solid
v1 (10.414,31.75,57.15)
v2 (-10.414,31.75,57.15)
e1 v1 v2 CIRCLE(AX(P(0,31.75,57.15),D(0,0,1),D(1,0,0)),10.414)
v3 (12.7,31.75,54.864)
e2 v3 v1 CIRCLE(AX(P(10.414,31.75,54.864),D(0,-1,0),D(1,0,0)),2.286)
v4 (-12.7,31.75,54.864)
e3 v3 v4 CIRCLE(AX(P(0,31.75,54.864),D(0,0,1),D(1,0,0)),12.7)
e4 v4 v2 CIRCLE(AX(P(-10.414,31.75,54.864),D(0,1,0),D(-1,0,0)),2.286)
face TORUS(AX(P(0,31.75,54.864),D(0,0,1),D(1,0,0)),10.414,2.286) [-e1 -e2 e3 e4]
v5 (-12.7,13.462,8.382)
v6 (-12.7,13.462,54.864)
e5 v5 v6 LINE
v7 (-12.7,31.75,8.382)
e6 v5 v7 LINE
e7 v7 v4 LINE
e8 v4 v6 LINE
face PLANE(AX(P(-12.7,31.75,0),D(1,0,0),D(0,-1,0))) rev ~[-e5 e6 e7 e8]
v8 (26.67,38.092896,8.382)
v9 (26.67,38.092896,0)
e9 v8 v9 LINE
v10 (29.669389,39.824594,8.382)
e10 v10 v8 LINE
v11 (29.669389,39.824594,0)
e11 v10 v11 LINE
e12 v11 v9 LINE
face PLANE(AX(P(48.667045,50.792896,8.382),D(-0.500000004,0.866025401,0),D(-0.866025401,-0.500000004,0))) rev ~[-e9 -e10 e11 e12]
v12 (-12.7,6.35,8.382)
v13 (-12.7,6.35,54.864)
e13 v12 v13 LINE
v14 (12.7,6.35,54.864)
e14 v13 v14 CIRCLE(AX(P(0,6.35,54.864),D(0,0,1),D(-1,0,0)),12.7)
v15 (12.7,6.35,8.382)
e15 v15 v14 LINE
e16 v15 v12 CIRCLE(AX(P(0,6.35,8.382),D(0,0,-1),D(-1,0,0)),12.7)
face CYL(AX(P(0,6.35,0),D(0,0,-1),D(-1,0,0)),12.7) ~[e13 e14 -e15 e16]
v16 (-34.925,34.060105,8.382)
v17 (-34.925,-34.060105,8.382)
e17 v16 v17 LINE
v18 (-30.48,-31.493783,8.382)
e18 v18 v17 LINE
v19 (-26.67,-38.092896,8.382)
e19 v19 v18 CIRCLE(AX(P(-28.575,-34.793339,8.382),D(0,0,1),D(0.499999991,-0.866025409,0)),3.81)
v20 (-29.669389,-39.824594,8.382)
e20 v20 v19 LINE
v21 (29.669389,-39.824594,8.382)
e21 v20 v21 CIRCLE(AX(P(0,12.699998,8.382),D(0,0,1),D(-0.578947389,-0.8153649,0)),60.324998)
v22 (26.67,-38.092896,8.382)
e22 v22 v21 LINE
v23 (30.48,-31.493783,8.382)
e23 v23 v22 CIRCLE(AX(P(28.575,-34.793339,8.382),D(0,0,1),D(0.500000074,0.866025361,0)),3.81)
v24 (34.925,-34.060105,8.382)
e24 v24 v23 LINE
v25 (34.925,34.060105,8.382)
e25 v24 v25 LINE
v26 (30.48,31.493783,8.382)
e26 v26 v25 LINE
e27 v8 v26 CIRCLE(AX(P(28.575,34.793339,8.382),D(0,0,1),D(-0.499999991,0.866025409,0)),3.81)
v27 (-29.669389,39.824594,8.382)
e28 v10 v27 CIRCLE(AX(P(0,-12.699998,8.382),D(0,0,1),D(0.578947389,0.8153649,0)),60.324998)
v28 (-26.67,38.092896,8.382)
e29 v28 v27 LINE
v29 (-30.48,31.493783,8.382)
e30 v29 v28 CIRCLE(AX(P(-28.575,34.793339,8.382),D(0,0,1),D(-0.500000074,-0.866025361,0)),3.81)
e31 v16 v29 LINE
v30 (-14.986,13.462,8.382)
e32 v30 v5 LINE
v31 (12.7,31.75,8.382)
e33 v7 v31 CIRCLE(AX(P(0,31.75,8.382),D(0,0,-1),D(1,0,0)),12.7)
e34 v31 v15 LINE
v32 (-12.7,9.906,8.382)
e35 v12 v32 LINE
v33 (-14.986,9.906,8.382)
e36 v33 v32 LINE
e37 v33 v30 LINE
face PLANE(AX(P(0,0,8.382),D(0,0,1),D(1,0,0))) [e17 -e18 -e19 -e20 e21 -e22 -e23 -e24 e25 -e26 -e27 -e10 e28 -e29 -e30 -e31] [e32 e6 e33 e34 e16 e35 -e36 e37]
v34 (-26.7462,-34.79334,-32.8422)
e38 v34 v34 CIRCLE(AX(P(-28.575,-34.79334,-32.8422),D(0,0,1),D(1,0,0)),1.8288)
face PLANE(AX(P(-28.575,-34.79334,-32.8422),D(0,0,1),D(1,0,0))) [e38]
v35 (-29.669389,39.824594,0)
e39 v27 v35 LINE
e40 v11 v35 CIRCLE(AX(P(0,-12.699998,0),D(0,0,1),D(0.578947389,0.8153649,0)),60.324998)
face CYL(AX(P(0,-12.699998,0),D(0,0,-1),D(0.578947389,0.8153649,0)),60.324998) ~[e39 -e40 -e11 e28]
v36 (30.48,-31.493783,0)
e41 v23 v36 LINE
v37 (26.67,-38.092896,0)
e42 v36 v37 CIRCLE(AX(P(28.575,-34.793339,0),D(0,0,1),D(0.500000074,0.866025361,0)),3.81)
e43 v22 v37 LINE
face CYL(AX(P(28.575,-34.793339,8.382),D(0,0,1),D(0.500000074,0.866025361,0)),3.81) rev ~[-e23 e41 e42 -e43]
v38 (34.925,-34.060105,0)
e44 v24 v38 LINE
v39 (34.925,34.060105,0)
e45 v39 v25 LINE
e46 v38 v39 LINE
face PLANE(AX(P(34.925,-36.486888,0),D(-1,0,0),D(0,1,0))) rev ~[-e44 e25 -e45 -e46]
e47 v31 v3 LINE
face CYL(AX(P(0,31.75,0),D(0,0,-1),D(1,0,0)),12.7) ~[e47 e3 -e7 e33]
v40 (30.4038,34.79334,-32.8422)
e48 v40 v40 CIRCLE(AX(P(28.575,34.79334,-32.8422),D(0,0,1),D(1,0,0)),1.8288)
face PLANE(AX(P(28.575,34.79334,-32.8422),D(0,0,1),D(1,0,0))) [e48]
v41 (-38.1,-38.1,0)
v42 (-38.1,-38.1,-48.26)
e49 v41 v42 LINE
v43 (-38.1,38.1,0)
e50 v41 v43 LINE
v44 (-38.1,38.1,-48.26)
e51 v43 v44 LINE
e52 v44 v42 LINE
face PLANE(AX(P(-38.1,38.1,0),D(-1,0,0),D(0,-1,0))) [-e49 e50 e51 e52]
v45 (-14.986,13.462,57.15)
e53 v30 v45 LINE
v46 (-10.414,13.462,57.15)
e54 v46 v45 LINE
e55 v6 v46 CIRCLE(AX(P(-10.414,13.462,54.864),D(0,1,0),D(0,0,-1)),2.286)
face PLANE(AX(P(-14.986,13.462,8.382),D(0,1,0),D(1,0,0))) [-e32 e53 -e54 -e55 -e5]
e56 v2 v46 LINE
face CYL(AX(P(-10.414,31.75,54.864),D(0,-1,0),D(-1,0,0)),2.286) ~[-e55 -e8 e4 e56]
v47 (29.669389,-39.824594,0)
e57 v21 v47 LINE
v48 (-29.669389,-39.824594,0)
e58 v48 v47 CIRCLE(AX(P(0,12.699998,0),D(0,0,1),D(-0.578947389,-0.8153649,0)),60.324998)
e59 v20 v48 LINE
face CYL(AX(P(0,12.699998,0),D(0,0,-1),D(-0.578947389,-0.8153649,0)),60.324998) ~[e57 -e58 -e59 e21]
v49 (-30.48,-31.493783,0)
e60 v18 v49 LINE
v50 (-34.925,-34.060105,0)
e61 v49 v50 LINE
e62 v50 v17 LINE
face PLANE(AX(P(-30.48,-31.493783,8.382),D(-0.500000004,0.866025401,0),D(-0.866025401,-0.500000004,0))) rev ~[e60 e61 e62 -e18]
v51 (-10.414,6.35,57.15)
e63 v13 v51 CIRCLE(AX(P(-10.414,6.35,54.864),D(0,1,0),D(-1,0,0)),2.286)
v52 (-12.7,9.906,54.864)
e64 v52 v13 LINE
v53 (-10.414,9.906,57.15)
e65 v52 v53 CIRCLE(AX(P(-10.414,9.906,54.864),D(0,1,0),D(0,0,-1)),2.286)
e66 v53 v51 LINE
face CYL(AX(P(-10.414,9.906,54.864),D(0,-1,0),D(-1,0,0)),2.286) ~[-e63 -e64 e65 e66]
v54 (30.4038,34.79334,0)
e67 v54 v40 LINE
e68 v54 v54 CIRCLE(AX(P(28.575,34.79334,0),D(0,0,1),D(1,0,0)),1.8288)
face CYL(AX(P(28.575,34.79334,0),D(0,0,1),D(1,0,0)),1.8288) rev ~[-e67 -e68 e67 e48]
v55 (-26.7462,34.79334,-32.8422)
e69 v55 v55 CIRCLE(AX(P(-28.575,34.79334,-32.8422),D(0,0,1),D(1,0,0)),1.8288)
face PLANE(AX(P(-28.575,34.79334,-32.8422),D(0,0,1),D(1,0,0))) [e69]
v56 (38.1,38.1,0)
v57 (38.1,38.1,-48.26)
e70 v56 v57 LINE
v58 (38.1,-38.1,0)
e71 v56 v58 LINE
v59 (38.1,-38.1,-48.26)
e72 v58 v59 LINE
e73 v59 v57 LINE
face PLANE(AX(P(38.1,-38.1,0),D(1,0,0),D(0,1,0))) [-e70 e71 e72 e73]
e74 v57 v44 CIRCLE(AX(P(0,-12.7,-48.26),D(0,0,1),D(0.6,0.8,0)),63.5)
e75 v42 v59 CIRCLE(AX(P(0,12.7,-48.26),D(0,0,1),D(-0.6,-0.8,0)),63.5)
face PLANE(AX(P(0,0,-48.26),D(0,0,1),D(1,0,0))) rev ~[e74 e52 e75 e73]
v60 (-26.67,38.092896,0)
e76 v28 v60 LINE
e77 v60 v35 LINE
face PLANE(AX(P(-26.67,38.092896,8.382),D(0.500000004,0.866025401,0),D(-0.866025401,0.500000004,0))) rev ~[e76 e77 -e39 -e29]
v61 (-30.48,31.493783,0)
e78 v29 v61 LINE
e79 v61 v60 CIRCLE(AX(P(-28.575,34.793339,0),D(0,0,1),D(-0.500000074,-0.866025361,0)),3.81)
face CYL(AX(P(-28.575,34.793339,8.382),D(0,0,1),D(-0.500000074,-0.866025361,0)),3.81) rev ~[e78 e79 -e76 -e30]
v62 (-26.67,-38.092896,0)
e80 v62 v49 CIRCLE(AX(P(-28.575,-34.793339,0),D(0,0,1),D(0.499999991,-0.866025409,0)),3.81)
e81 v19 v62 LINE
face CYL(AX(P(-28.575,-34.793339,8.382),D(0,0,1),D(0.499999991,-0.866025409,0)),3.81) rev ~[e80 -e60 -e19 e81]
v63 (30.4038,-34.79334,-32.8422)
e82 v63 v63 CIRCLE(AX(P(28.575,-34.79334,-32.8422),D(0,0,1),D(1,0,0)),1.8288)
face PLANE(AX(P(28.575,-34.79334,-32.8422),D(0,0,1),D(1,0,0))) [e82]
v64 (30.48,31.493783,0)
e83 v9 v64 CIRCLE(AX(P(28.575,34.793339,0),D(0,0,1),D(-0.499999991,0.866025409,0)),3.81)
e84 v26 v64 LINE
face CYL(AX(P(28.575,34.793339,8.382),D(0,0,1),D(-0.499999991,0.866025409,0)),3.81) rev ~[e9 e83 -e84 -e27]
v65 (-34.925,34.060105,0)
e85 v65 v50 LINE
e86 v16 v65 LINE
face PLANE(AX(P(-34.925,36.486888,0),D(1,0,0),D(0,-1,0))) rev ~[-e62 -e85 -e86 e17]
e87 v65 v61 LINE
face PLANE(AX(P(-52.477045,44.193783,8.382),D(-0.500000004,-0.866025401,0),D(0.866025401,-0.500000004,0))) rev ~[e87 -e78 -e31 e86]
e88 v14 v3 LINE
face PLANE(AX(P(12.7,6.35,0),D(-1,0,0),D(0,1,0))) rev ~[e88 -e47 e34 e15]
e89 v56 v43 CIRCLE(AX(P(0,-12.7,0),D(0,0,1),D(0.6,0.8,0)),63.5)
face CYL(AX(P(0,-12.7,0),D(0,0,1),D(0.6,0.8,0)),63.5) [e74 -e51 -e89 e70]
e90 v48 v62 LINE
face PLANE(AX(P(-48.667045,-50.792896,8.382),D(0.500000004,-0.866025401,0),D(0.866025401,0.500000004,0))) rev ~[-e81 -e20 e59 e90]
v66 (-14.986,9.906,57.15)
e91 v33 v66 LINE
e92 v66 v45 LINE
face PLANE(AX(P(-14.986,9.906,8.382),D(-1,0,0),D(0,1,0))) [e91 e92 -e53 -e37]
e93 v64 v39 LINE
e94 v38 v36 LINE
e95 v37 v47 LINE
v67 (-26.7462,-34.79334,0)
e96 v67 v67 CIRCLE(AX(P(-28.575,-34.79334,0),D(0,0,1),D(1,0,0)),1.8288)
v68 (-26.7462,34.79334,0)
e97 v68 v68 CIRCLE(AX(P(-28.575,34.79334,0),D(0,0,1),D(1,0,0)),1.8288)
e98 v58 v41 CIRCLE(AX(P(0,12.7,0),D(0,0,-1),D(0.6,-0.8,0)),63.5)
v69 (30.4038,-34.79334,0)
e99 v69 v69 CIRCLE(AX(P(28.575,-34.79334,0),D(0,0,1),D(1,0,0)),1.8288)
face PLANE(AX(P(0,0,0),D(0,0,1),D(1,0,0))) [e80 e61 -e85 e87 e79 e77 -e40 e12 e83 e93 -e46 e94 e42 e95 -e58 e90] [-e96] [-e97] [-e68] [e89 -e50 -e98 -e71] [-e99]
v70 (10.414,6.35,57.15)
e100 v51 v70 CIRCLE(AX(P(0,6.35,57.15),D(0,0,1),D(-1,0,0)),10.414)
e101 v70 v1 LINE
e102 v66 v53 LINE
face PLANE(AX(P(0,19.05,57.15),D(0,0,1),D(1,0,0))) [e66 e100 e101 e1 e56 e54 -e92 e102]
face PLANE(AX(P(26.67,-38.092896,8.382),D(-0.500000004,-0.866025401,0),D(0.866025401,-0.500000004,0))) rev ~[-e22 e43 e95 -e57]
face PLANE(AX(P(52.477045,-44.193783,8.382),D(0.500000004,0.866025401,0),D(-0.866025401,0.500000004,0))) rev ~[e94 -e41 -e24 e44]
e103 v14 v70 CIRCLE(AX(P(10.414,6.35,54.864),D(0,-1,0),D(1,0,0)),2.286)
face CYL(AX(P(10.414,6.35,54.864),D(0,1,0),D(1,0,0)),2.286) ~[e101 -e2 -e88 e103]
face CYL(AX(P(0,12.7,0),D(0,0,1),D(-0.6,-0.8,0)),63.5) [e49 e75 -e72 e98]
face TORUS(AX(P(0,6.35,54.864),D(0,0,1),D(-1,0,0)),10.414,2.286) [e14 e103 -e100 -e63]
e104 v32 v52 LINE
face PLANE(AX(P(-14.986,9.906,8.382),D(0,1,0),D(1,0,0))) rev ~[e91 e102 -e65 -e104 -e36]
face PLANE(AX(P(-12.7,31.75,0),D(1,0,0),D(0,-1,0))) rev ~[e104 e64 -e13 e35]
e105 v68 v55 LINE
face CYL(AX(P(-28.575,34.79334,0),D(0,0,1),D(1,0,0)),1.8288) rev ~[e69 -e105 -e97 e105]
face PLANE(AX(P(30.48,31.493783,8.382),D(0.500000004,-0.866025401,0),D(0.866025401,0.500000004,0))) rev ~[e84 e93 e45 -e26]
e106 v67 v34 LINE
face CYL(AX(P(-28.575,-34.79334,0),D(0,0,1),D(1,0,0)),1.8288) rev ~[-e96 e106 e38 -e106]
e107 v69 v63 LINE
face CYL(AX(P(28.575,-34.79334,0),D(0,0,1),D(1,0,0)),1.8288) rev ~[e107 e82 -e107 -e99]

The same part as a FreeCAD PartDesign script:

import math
import FreeCAD as App
import Part
import Sketcher
from FreeCAD import Vector
Q = App.Units.Quantity


def edges_at(feature, points):
    """Names of the edges that pass closest to the given points."""
    edges = feature.Shape.Edges
    near = lambda p: min(range(len(edges)), key=lambda i: edges[i].distToShape(Part.Vertex(*p))[0])
    return sorted({f"Edge{near(p) + 1}" for p in points})


def add_polygon(sketch, points):
    """Adds a closed chain of lines whose ends are joined by coincident constraints."""
    first, n = sketch.GeometryCount, len(points)
    for a, b in zip(points, points[1:] + points[:1]):
        sketch.addGeometry(Part.LineSegment(App.Vector(*a, 0), App.Vector(*b, 0)), False)
    for i in range(n):
        sketch.addConstraint(Sketcher.Constraint("Coincident", first + i, 2, first + (i + 1) % n, 1))

doc = App.newDocument("Part")
body = doc.addObject("PartDesign::Body", "Body")

sketch1 = body.newObject("Sketcher::SketchObject", "Sketch")
sketch1.AttachmentSupport = (doc.getObject("XY_Plane"), [""])
sketch1.MapMode = "FlatFace"
sketch1.addGeometry(Part.ArcOfCircle(Part.Circle(Vector(0, 13, 0), Vector(0, 0, 1), 64), math.radians(-127), math.radians(-53)), False)
sketch1.addGeometry(Part.LineSegment(Vector(38, -38, 0), Vector(38, 38, 0)), False)
sketch1.addGeometry(Part.ArcOfCircle(Part.Circle(Vector(0, -13, 0), Vector(0, 0, 1), 64), math.radians(53), math.radians(127)), False)
sketch1.addGeometry(Part.LineSegment(Vector(-38, 38, 0), Vector(-38, -38, 0)), False)
sketch1.addConstraint(Sketcher.Constraint("Coincident", 0, 2, 1, 1))
sketch1.addConstraint(Sketcher.Constraint("Coincident", 1, 2, 2, 1))
sketch1.addConstraint(Sketcher.Constraint("Coincident", 2, 2, 3, 1))
sketch1.addConstraint(Sketcher.Constraint("Coincident", 3, 2, 0, 1))
sketch1.addConstraint(Sketcher.Constraint("Vertical", 1))
sketch1.addConstraint(Sketcher.Constraint("Vertical", 3))
sketch1.addConstraint(Sketcher.Constraint("Equal", 0, 2))
sketch1.addConstraint(Sketcher.Constraint("Symmetric", 0, 3, 2, 3, -1, 1))
sketch1.addConstraint(Sketcher.Constraint("Symmetric", 1, 2, 2, 2, -2))
sketch1.addConstraint(Sketcher.Constraint("Radius", 0, Q("2.5 in")))
sketch1.addConstraint(Sketcher.Constraint("DistanceY", 1, 1, 1, 2, Q("3 in")))
sketch1.addConstraint(Sketcher.Constraint("DistanceY", 2, 3, 0, 3, Q("1 in")))
pad1 = body.newObject("PartDesign::Pad", "Pad")
pad1.Profile = sketch1
pad1.Length = Q("1.9 in")
pad1.Reversed = True

sketch2 = body.newObject("Sketcher::SketchObject", "Sketch001")
sketch2.AttachmentSupport = (doc.getObject("XY_Plane"), [""])
sketch2.MapMode = "FlatFace"
sketch2.addGeometry(Part.LineSegment(Vector(-35, 36, 0), Vector(-35, -36, 0)), False)
sketch2.addGeometry(Part.ArcOfCircle(Part.Circle(Vector(0, 13, 0), Vector(0, 0, 1), 60), math.radians(-125), math.radians(-55)), False)
sketch2.addGeometry(Part.LineSegment(Vector(35, -36, 0), Vector(35, 36, 0)), False)
sketch2.addGeometry(Part.ArcOfCircle(Part.Circle(Vector(0, -13, 0), Vector(0, 0, 1), 60), math.radians(55), math.radians(125)), False)
sketch2.addConstraint(Sketcher.Constraint("Coincident", 0, 2, 1, 1))
sketch2.addConstraint(Sketcher.Constraint("Coincident", 1, 2, 2, 1))
sketch2.addConstraint(Sketcher.Constraint("Coincident", 2, 2, 3, 1))
sketch2.addConstraint(Sketcher.Constraint("Coincident", 3, 2, 0, 1))
sketch2.addConstraint(Sketcher.Constraint("Vertical", 0))
sketch2.addConstraint(Sketcher.Constraint("Vertical", 2))
sketch2.addConstraint(Sketcher.Constraint("Equal", 1, 3))
sketch2.addConstraint(Sketcher.Constraint("Symmetric", 1, 3, 3, 3, -1, 1))
sketch2.addConstraint(Sketcher.Constraint("Symmetric", 0, 2, 1, 2, -2))
sketch2.addConstraint(Sketcher.Constraint("Radius", 1, Q("2.3749999 in")))
sketch2.addConstraint(Sketcher.Constraint("DistanceY", 3, 3, 1, 3, Q("0.9999998 in")))
sketch2.addConstraint(Sketcher.Constraint("DistanceX", 0, 2, 1, 2, Q("2.75 in")))
pad2 = body.newObject("PartDesign::Pad", "Pad001")
pad2.Profile = sketch2
pad2.Length = Q("0.33 in")

sketch3 = body.newObject("Sketcher::SketchObject", "Sketch002")
sketch3.AttachmentSupport = (doc.getObject("XY_Plane"), [""])
sketch3.MapMode = "FlatFace"
sketch3.AttachmentOffset = App.Placement(Vector(0, 0, 0.33 * 25.4), App.Rotation())
sketch3.addGeometry(Part.ArcOfCircle(Part.Circle(Vector(-28.6, -34.8, 0), Vector(0, 0, 1), 3.8), math.radians(-60), math.radians(120)), False)
sketch3.addGeometry(Part.LineSegment(Vector(-30.5, -31.5, 0), Vector(-52.5, -44.2, 0)), False)
sketch3.addGeometry(Part.ArcOfCircle(Part.Circle(Vector(-50.6, -47.5, 0), Vector(0, 0, 1), 3.8), math.radians(120), math.radians(300)), False)
sketch3.addGeometry(Part.LineSegment(Vector(-48.7, -50.8, 0), Vector(-26.7, -38.1, 0)), False)
sketch3.addGeometry(Part.ArcOfCircle(Part.Circle(Vector(28.6, -34.8, 0), Vector(0, 0, 1), 3.8), math.radians(60), math.radians(240)), False)
sketch3.addGeometry(Part.LineSegment(Vector(26.7, -38.1, 0), Vector(48.7, -50.8, 0)), False)
sketch3.addGeometry(Part.ArcOfCircle(Part.Circle(Vector(50.6, -47.5, 0), Vector(0, 0, 1), 3.8), math.radians(-120), math.radians(60)), False)
sketch3.addGeometry(Part.LineSegment(Vector(52.5, -44.2, 0), Vector(30.5, -31.5, 0)), False)
sketch3.addGeometry(Part.LineSegment(Vector(-52.5, 44.2, 0), Vector(-30.5, 31.5, 0)), False)
sketch3.addGeometry(Part.ArcOfCircle(Part.Circle(Vector(-28.6, 34.8, 0), Vector(0, 0, 1), 3.8), math.radians(-120), math.radians(60)), False)
sketch3.addGeometry(Part.LineSegment(Vector(-26.7, 38.1, 0), Vector(-48.7, 50.8, 0)), False)
sketch3.addGeometry(Part.ArcOfCircle(Part.Circle(Vector(-50.6, 47.5, 0), Vector(0, 0, 1), 3.8), math.radians(60), math.radians(240)), False)
sketch3.addGeometry(Part.ArcOfCircle(Part.Circle(Vector(28.6, 34.8, 0), Vector(0, 0, 1), 3.8), math.radians(120), math.radians(300)), False)
sketch3.addGeometry(Part.LineSegment(Vector(30.5, 31.5, 0), Vector(52.5, 44.2, 0)), False)
sketch3.addGeometry(Part.ArcOfCircle(Part.Circle(Vector(50.6, 47.5, 0), Vector(0, 0, 1), 3.8), math.radians(-60), math.radians(120)), False)
sketch3.addGeometry(Part.LineSegment(Vector(48.7, 50.8, 0), Vector(26.7, 38.1, 0)), False)
sketch3.addConstraint(Sketcher.Constraint("Tangent", 0, 2, 1, 1))
sketch3.addConstraint(Sketcher.Constraint("Tangent", 1, 2, 2, 1))
sketch3.addConstraint(Sketcher.Constraint("Tangent", 2, 2, 3, 1))
sketch3.addConstraint(Sketcher.Constraint("Tangent", 3, 2, 0, 1))
sketch3.addConstraint(Sketcher.Constraint("Tangent", 4, 2, 5, 1))
sketch3.addConstraint(Sketcher.Constraint("Tangent", 5, 2, 6, 1))
sketch3.addConstraint(Sketcher.Constraint("Tangent", 6, 2, 7, 1))
sketch3.addConstraint(Sketcher.Constraint("Tangent", 7, 2, 4, 1))
sketch3.addConstraint(Sketcher.Constraint("Tangent", 8, 2, 9, 1))
sketch3.addConstraint(Sketcher.Constraint("Tangent", 9, 2, 10, 1))
sketch3.addConstraint(Sketcher.Constraint("Tangent", 10, 2, 11, 1))
sketch3.addConstraint(Sketcher.Constraint("Tangent", 11, 2, 8, 1))
sketch3.addConstraint(Sketcher.Constraint("Tangent", 12, 2, 13, 1))
sketch3.addConstraint(Sketcher.Constraint("Tangent", 13, 2, 14, 1))
sketch3.addConstraint(Sketcher.Constraint("Tangent", 14, 2, 15, 1))
sketch3.addConstraint(Sketcher.Constraint("Tangent", 15, 2, 12, 1))
sketch3.addConstraint(Sketcher.Constraint("Equal", 0, 2))
sketch3.addConstraint(Sketcher.Constraint("Equal", 2, 4))
sketch3.addConstraint(Sketcher.Constraint("Equal", 4, 6))
sketch3.addConstraint(Sketcher.Constraint("Equal", 6, 9))
sketch3.addConstraint(Sketcher.Constraint("Equal", 9, 11))
sketch3.addConstraint(Sketcher.Constraint("Equal", 11, 12))
sketch3.addConstraint(Sketcher.Constraint("Equal", 12, 14))
sketch3.addConstraint(Sketcher.Constraint("Symmetric", 4, 3, 9, 3, -1, 1))
sketch3.addConstraint(Sketcher.Constraint("Symmetric", 6, 3, 11, 3, -1, 1))
sketch3.addConstraint(Sketcher.Constraint("Symmetric", 0, 3, 12, 3, -1, 1))
sketch3.addConstraint(Sketcher.Constraint("Symmetric", 2, 3, 14, 3, -1, 1))
sketch3.addConstraint(Sketcher.Constraint("Symmetric", 0, 3, 4, 3, -2))
sketch3.addConstraint(Sketcher.Constraint("Symmetric", 2, 3, 6, 3, -2))
sketch3.addConstraint(Sketcher.Constraint("Radius", 0, Q("0.15 in")))
sketch3.addConstraint(Sketcher.Constraint("Distance", 1, Q("1 in")))
sketch3.addConstraint(Sketcher.Constraint("Angle", 1, Q("-150 deg")))
sketch3.addConstraint(Sketcher.Constraint("DistanceX", 0, 2, -1, 1, Q("1.2 in")))
sketch3.addConstraint(Sketcher.Constraint("DistanceY", 0, 3, -1, 1, 34.793339))
pocket1 = body.newObject("PartDesign::Pocket", "Pocket")
pocket1.Profile = sketch3
pocket1.Length = Q("0.33 in")

sketch4 = body.newObject("Sketcher::SketchObject", "Sketch003")
sketch4.AttachmentSupport = (doc.getObject("XY_Plane"), [""])
sketch4.MapMode = "FlatFace"
sketch4.addGeometry(Part.Circle(Vector(28.6, -34.8, 0), Vector(0, 0, 1), 1.8), False)
sketch4.addGeometry(Part.Circle(Vector(-28.6, -34.8, 0), Vector(0, 0, 1), 1.8), False)
sketch4.addGeometry(Part.Circle(Vector(-28.6, 34.8, 0), Vector(0, 0, 1), 1.8), False)
sketch4.addGeometry(Part.Circle(Vector(28.6, 34.8, 0), Vector(0, 0, 1), 1.8), False)
sketch4.addConstraint(Sketcher.Constraint("Equal", 0, 1))
sketch4.addConstraint(Sketcher.Constraint("Equal", 1, 2))
sketch4.addConstraint(Sketcher.Constraint("Equal", 2, 3))
sketch4.addConstraint(Sketcher.Constraint("Symmetric", 0, 3, 2, 3, -1, 1))
sketch4.addConstraint(Sketcher.Constraint("Symmetric", 1, 3, 3, 3, -1, 1))
sketch4.addConstraint(Sketcher.Constraint("Symmetric", 0, 3, 1, 3, -2))
sketch4.addConstraint(Sketcher.Constraint("Diameter", 0, Q("0.144 in")))
sketch4.addConstraint(Sketcher.Constraint("DistanceX", 1, 3, 0, 3, Q("2.25 in")))
sketch4.addConstraint(Sketcher.Constraint("DistanceY", 0, 3, -1, 1, 34.79334))
pocket2 = body.newObject("PartDesign::Pocket", "Pocket001")
pocket2.Profile = sketch4
pocket2.Length = Q("1.293 in")

sketch5 = body.newObject("Sketcher::SketchObject", "Sketch004")
sketch5.AttachmentSupport = (doc.getObject("XY_Plane"), [""])
sketch5.MapMode = "FlatFace"
sketch5.addGeometry(Part.ArcOfCircle(Part.Circle(Vector(0, 6, 0), Vector(0, 0, 1), 13), math.radians(180), math.radians(360)), False)
sketch5.addGeometry(Part.LineSegment(Vector(13, 6, 0), Vector(13, 32, 0)), False)
sketch5.addGeometry(Part.ArcOfCircle(Part.Circle(Vector(0, 32, 0), Vector(0, 0, 1), 13), math.radians(0), math.radians(180)), False)
sketch5.addGeometry(Part.LineSegment(Vector(-13, 32, 0), Vector(-13, 6, 0)), False)
sketch5.addConstraint(Sketcher.Constraint("Tangent", 0, 2, 1, 1))
sketch5.addConstraint(Sketcher.Constraint("Tangent", 1, 2, 2, 1))
sketch5.addConstraint(Sketcher.Constraint("Tangent", 2, 2, 3, 1))
sketch5.addConstraint(Sketcher.Constraint("Tangent", 3, 2, 0, 1))
sketch5.addConstraint(Sketcher.Constraint("Vertical", 1))
sketch5.addConstraint(Sketcher.Constraint("Vertical", 3))
sketch5.addConstraint(Sketcher.Constraint("PointOnObject", 0, 3, -2))
sketch5.addConstraint(Sketcher.Constraint("Radius", 0, Q("0.5 in")))
sketch5.addConstraint(Sketcher.Constraint("DistanceY", 1, 1, 1, 2, Q("1 in")))
sketch5.addConstraint(Sketcher.Constraint("DistanceY", -1, 1, 0, 3, Q("0.25 in")))
pad3 = body.newObject("PartDesign::Pad", "Pad002")
pad3.Profile = sketch5
pad3.Length = Q("2.25 in")

sketch6 = body.newObject("Sketcher::SketchObject", "Sketch005")
sketch6.AttachmentSupport = (doc.getObject("XY_Plane"), [""])
sketch6.MapMode = "FlatFace"
sketch6.AttachmentOffset = App.Placement(Vector(0, 0, 0.33 * 25.4), App.Rotation())
add_polygon(sketch6, [(-15, 13.5), (-15, 9.9), (-12.7, 9.9), (-12.7, 13.5)])
sketch6.addConstraint(Sketcher.Constraint("Vertical", 0))
sketch6.addConstraint(Sketcher.Constraint("Horizontal", 1))
sketch6.addConstraint(Sketcher.Constraint("Vertical", 2))
sketch6.addConstraint(Sketcher.Constraint("Horizontal", 3))
sketch6.addConstraint(Sketcher.Constraint("DistanceX", 1, 1, 1, 2, Q("0.09 in")))
sketch6.addConstraint(Sketcher.Constraint("DistanceY", 0, 2, 0, 1, Q("0.14 in")))
sketch6.addConstraint(Sketcher.Constraint("DistanceX", 1, 2, -1, 1, Q("0.5 in")))
sketch6.addConstraint(Sketcher.Constraint("DistanceY", -1, 1, 0, 2, Q("0.39 in")))
pad4 = body.newObject("PartDesign::Pad", "Pad003")
pad4.Profile = sketch6
pad4.Length = Q("1.92 in")
doc.recompute()

fillet = body.newObject("PartDesign::Fillet", "Fillet")
fillet.Base = (pad4, edges_at(pad4, [(12.7, 19.05, 57.15)]))
fillet.Radius = Q("0.09 in")

doc.recompute()
